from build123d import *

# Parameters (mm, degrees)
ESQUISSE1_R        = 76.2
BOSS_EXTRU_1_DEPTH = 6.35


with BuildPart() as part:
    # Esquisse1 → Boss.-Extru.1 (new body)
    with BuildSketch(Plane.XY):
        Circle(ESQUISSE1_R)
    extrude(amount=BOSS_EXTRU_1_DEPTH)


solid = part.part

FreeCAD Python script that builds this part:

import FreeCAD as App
import Part
import Sketcher
Q = App.Units.Quantity

doc = App.newDocument("Part")
body = doc.addObject("PartDesign::Body", "Body")

# Sketch on XY plane
sketch1 = body.newObject("Sketcher::SketchObject", "Sketch")
sketch1.AttachmentSupport = (doc.getObject("XY_Plane"), [""])
sketch1.MapMode = "FlatFace"
sketch1.addGeometry(Part.Circle(App.Vector(0, 0, 0), App.Vector(0, 0, 1), 76), False)
sketch1.addConstraint([
    Sketcher.Constraint("Coincident", 0, 3, -1, 1),
    Sketcher.Constraint("Diameter", 0, Q("6 in")),
])
pad1 = body.newObject("PartDesign::Pad", "Pad")
pad1.Profile = sketch1
pad1.Length = Q("0.25 in")

doc.recompute()
